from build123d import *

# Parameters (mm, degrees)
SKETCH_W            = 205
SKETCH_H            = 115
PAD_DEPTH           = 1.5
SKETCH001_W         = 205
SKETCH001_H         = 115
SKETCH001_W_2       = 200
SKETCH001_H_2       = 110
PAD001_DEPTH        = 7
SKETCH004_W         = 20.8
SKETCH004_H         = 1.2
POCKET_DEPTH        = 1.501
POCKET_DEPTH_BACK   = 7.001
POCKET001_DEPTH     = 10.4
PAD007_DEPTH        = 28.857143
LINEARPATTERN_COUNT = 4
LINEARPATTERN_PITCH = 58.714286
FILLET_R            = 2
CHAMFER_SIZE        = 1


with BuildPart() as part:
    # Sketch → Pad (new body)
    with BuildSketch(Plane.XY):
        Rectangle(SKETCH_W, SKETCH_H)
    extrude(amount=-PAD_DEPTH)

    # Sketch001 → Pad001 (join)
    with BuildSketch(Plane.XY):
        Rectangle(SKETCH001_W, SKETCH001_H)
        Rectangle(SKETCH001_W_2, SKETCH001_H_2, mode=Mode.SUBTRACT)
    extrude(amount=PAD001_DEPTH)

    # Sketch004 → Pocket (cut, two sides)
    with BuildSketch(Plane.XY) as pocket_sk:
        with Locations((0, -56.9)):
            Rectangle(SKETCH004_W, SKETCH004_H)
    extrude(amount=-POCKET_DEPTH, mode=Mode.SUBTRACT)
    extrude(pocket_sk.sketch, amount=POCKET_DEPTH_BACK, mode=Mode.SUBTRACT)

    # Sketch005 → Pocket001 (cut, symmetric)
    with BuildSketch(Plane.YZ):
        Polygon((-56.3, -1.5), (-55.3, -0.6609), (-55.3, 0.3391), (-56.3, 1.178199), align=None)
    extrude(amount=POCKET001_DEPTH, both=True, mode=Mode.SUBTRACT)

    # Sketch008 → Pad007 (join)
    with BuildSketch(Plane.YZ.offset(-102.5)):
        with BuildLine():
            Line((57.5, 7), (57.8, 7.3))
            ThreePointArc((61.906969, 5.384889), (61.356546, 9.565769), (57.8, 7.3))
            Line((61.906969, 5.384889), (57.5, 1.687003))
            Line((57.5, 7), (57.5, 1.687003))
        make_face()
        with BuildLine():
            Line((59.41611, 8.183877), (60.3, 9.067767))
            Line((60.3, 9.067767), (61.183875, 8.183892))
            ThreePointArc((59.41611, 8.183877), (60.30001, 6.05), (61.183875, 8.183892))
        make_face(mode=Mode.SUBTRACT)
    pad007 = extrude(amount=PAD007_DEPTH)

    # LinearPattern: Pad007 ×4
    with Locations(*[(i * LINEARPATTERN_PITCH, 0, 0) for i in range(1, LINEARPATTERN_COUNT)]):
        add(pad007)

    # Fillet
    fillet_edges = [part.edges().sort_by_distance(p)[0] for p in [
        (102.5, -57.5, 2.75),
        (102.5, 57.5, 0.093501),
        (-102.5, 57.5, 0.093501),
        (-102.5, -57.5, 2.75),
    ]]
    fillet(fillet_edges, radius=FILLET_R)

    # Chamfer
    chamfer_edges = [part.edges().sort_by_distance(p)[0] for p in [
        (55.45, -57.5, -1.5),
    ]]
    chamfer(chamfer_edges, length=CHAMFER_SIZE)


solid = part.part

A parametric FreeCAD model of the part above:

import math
import FreeCAD as App
import Part
import Sketcher
Q = App.Units.Quantity


def edges_at(feature, points):
    """Names of the edges that pass closest to the given points."""
    edges = feature.Shape.Edges
    near = lambda p: min(range(len(edges)), key=lambda i: edges[i].distToShape(Part.Vertex(*p))[0])
    return sorted({f"Edge{near(p) + 1}" for p in points})

doc = App.newDocument("Part")
body = doc.addObject("PartDesign::Body", "Body")

sketch1 = doc.addObject("Sketcher::SketchObject", "Sketch")
body.addObject(sketch1)
sketch1.AttachmentSupport = (doc.XY_Plane, [""])
sketch1.MapMode = "FlatFace"
sketch1.addGeometry(Part.LineSegment(App.Vector(-102.5, 57.5, 0), App.Vector(-102.5, -57.5, 0)), False)
sketch1.addGeometry(Part.LineSegment(App.Vector(-102.5, -57.5, 0), App.Vector(102.5, -57.5, 0)), False)
sketch1.addGeometry(Part.LineSegment(App.Vector(102.5, -57.5, 0), App.Vector(102.5, 57.5, 0)), False)
sketch1.addGeometry(Part.LineSegment(App.Vector(102.5, 57.5, 0), App.Vector(-102.5, 57.5, 0)), False)
sketch1.addConstraint(Sketcher.Constraint("Coincident", 0, 2, 1, 1))
sketch1.addConstraint(Sketcher.Constraint("Coincident", 1, 2, 2, 1))
sketch1.addConstraint(Sketcher.Constraint("Coincident", 2, 2, 3, 1))
sketch1.addConstraint(Sketcher.Constraint("Coincident", 3, 2, 0, 1))
sketch1.addConstraint(Sketcher.Constraint("Vertical", 0))
sketch1.addConstraint(Sketcher.Constraint("Horizontal", 1))
sketch1.addConstraint(Sketcher.Constraint("Vertical", 2))
sketch1.addConstraint(Sketcher.Constraint("Horizontal", 3))
sketch1.addConstraint(Sketcher.Constraint("Symmetric", 0, 2, 2, 2, -1, 1))
sketch1.addConstraint(Sketcher.Constraint("DistanceX", 1, 1, 1, 2, Q("205 mm")))
sketch1.addConstraint(Sketcher.Constraint("DistanceY", 0, 2, 0, 1, Q("115 mm")))
pad1 = doc.addObject("PartDesign::Pad", "Pad")
body.addObject(pad1)
pad1.Profile = sketch1
pad1.Length = 1.5
pad1.Reversed = True

sketch2 = doc.addObject("Sketcher::SketchObject", "Sketch001")
body.addObject(sketch2)
sketch2.AttachmentSupport = (doc.XY_Plane, [""])
sketch2.MapMode = "FlatFace"
sketch2.addGeometry(Part.LineSegment(App.Vector(-102.5, 57.5, 0), App.Vector(-102.5, -57.5, 0)), False)
sketch2.addGeometry(Part.LineSegment(App.Vector(-102.5, -57.5, 0), App.Vector(102.5, -57.5, 0)), False)
sketch2.addGeometry(Part.LineSegment(App.Vector(102.5, -57.5, 0), App.Vector(102.5, 57.5, 0)), False)
sketch2.addGeometry(Part.LineSegment(App.Vector(102.5, 57.5, 0), App.Vector(-102.5, 57.5, 0)), False)
sketch2.addGeometry(Part.LineSegment(App.Vector(100, -55, 0), App.Vector(-100, -55, 0)), False)
sketch2.addGeometry(Part.LineSegment(App.Vector(-100, -55, 0), App.Vector(-100, 55, 0)), False)
sketch2.addGeometry(Part.LineSegment(App.Vector(-100, 55, 0), App.Vector(100, 55, 0)), False)
sketch2.addGeometry(Part.LineSegment(App.Vector(100, 55, 0), App.Vector(100, -55, 0)), False)
sketch2.addConstraint(Sketcher.Constraint("Coincident", 0, 2, 1, 1))
sketch2.addConstraint(Sketcher.Constraint("Coincident", 1, 2, 2, 1))
sketch2.addConstraint(Sketcher.Constraint("Coincident", 2, 2, 3, 1))
sketch2.addConstraint(Sketcher.Constraint("Coincident", 3, 2, 0, 1))
sketch2.addConstraint(Sketcher.Constraint("Coincident", 4, 2, 5, 1))
sketch2.addConstraint(Sketcher.Constraint("Coincident", 5, 2, 6, 1))
sketch2.addConstraint(Sketcher.Constraint("Coincident", 6, 2, 7, 1))
sketch2.addConstraint(Sketcher.Constraint("Coincident", 7, 2, 4, 1))
sketch2.addConstraint(Sketcher.Constraint("Vertical", 0))
sketch2.addConstraint(Sketcher.Constraint("Horizontal", 1))
sketch2.addConstraint(Sketcher.Constraint("Vertical", 2))
sketch2.addConstraint(Sketcher.Constraint("Horizontal", 3))
sketch2.addConstraint(Sketcher.Constraint("Horizontal", 4))
sketch2.addConstraint(Sketcher.Constraint("Vertical", 5))
sketch2.addConstraint(Sketcher.Constraint("Horizontal", 6))
sketch2.addConstraint(Sketcher.Constraint("Vertical", 7))
sketch2.addConstraint(Sketcher.Constraint("Symmetric", 0, 2, 2, 2, -1, 1))
sketch2.addConstraint(Sketcher.Constraint("Symmetric", 4, 2, 6, 2, -1, 1))
sketch2.addConstraint(Sketcher.Constraint("DistanceX", 1, 1, 1, 2, Q("205 mm")))
sketch2.addConstraint(Sketcher.Constraint("DistanceX", 4, 2, 4, 1, Q("200 mm")))
sketch2.addConstraint(Sketcher.Constraint("DistanceY", 0, 2, 0, 1, Q("115 mm")))
sketch2.addConstraint(Sketcher.Constraint("DistanceY", 5, 1, 5, 2, Q("110 mm")))
pad2 = doc.addObject("PartDesign::Pad", "Pad001")
body.addObject(pad2)
pad2.Profile = sketch2
pad2.Length = 7

sketch3 = doc.addObject("Sketcher::SketchObject", "Sketch002")
body.addObject(sketch3)
sketch3.AttachmentSupport = (doc.XY_Plane, [""])
sketch3.MapMode = "FlatFace"
sketch3.addGeometry(Part.LineSegment(App.Vector(-10.4, -56.3, 0), App.Vector(-10.4, -57.5, 0)), False)
sketch3.addGeometry(Part.LineSegment(App.Vector(-10.4, -57.5, 0), App.Vector(10.4, -57.5, 0)), False)
sketch3.addGeometry(Part.LineSegment(App.Vector(10.4, -57.5, 0), App.Vector(10.4, -56.3, 0)), False)
sketch3.addGeometry(Part.LineSegment(App.Vector(10.4, -56.3, 0), App.Vector(-10.4, -56.3, 0)), False)
sketch3.addConstraint(Sketcher.Constraint("Coincident", 0, 2, 1, 1))
sketch3.addConstraint(Sketcher.Constraint("Coincident", 1, 2, 2, 1))
sketch3.addConstraint(Sketcher.Constraint("Coincident", 2, 2, 3, 1))
sketch3.addConstraint(Sketcher.Constraint("Coincident", 3, 2, 0, 1))
sketch3.addConstraint(Sketcher.Constraint("Vertical", 0))
sketch3.addConstraint(Sketcher.Constraint("Horizontal", 1))
sketch3.addConstraint(Sketcher.Constraint("Vertical", 2))
sketch3.addConstraint(Sketcher.Constraint("Horizontal", 3))
sketch3.addConstraint(Sketcher.Constraint("DistanceX", 1, 1, 1, 2, Q("20.8 mm")))
sketch3.addConstraint(Sketcher.Constraint("DistanceY", 0, 2, 0, 1, Q("1.2 mm")))
sketch3.addConstraint(Sketcher.Constraint("DistanceX", 0, 2, -1, 1, Q("10.4 mm")))
sketch3.addConstraint(Sketcher.Constraint("DistanceY", 0, 2, -1, 1, Q("57.5 mm")))
pocket1 = doc.addObject("PartDesign::Pocket", "Pocket")
body.addObject(pocket1)
pocket1.Profile = sketch3
pocket1.Type = "ThroughAll"
pocket1.Midplane = True

sketch4 = doc.addObject("Sketcher::SketchObject", "Sketch003")
body.addObject(sketch4)
sketch4.AttachmentSupport = (doc.YZ_Plane, [""])
sketch4.MapMode = "FlatFace"
sketch4.addGeometry(Part.LineSegment(App.Vector(-56.3, -1.5, 0), App.Vector(-55.3, -0.6609, 0)), False)
sketch4.addGeometry(Part.LineSegment(App.Vector(-55.3, -0.6609, 0), App.Vector(-55.3, 0.3391, 0)), False)
sketch4.addGeometry(Part.LineSegment(App.Vector(-55.3, 0.3391, 0), App.Vector(-56.3, 1.178199, 0)), False)
sketch4.addGeometry(Part.LineSegment(App.Vector(-56.3, 1.178199, 0), App.Vector(-56.3, -1.5, 0)), False)
sketch4.addConstraint(Sketcher.Constraint("Coincident", 0, 2, 1, 1))
sketch4.addConstraint(Sketcher.Constraint("Coincident", 1, 2, 2, 1))
sketch4.addConstraint(Sketcher.Constraint("Coincident", 2, 2, 3, 1))
sketch4.addConstraint(Sketcher.Constraint("Coincident", 3, 2, 0, 1))
sketch4.addConstraint(Sketcher.Constraint("Vertical", 1))
sketch4.addConstraint(Sketcher.Constraint("Vertical", 3))
sketch4.addConstraint(Sketcher.Constraint("Equal", 0, 2))
sketch4.addConstraint(Sketcher.Constraint("DistanceY", 1, 1, 1, 2, Q("1 mm")))
sketch4.addConstraint(Sketcher.Constraint("Angle", 0, Q("40.000012 deg")))
sketch4.addConstraint(Sketcher.Constraint("DistanceX", 2, 2, 1, 2, Q("1 mm")))
sketch4.addConstraint(Sketcher.Constraint("DistanceX", 0, 2, -1, 1, Q("55.3 mm")))
sketch4.addConstraint(Sketcher.Constraint("DistanceY", 3, 2, -1, 1, Q("1.5 mm")))
pocket2 = doc.addObject("PartDesign::Pocket", "Pocket001")
body.addObject(pocket2)
pocket2.Profile = sketch4
pocket2.Length = 20.8
pocket2.Midplane = True

sketch5 = doc.addObject("Sketcher::SketchObject", "Sketch004")
body.addObject(sketch5)
sketch5.AttachmentSupport = (doc.YZ_Plane, [""])
sketch5.MapMode = "FlatFace"
sketch5.AttachmentOffset = App.Placement(App.Vector(0, 0, -102.5), App.Rotation())
sketch5.addGeometry(Part.LineSegment(App.Vector(57.8, 7.3, 0), App.Vector(57.5, 7, 0)), False)
sketch5.addGeometry(Part.LineSegment(App.Vector(57.5, 7, 0), App.Vector(57.5, 1.687003, 0)), False)
sketch5.addGeometry(Part.LineSegment(App.Vector(57.5, 1.687003, 0), App.Vector(61.906969, 5.384889, 0)), False)
sketch5.addGeometry(Part.ArcOfCircle(Part.Circle(App.Vector(60.3, 7.3, 0), App.Vector(0, 0, 1), 2.5), math.radians(-49.999995), math.radians(179.999997)), False)
sketch5.addGeometry(Part.LineSegment(App.Vector(59.41611, 8.183877, 0), App.Vector(60.3, 9.067767, 0)), False)
sketch5.addGeometry(Part.LineSegment(App.Vector(60.3, 9.067767, 0), App.Vector(61.183875, 8.183892, 0)), False)
sketch5.addGeometry(Part.ArcOfCircle(Part.Circle(App.Vector(60.3, 7.3, 0), App.Vector(0, 0, 1), 1.25), math.radians(135.000422), math.radians(405.00055)), False)
sketch5.addConstraint(Sketcher.Constraint("Coincident", 0, 2, 1, 1))
sketch5.addConstraint(Sketcher.Constraint("Coincident", 1, 2, 2, 1))
sketch5.addConstraint(Sketcher.Constraint("Tangent", 2, 2, 3, 1))
sketch5.addConstraint(Sketcher.Constraint("Coincident", 3, 2, 0, 1))
sketch5.addConstraint(Sketcher.Constraint("Coincident", 4, 2, 5, 1))
sketch5.addConstraint(Sketcher.Constraint("Coincident", 5, 2, 6, 2))
sketch5.addConstraint(Sketcher.Constraint("Coincident", 6, 1, 4, 1))
sketch5.addConstraint(Sketcher.Constraint("Vertical", 1))
sketch5.addConstraint(Sketcher.Constraint("Coincident", 6, 3, 3, 3))
sketch5.addConstraint(Sketcher.Constraint("Parallel", 0, 4))
sketch5.addConstraint(Sketcher.Constraint("Perpendicular", 4, 5))
sketch5.addConstraint(Sketcher.Constraint("Horizontal", 6, 3, 3, 2))
sketch5.addConstraint(Sketcher.Constraint("Vertical", 6, 3, 4, 2))
sketch5.addConstraint(Sketcher.Constraint("Radius", 3, Q("2.5 mm")))
sketch5.addConstraint(Sketcher.Constraint("Angle", 2, Q("40 deg")))
sketch5.addConstraint(Sketcher.Constraint("Radius", 6, Q("1.25 mm")))
sketch5.addConstraint(Sketcher.Constraint("DistanceY", -1, 1, 0, 2, Q("7 mm")))
sketch5.addConstraint(Sketcher.Constraint("DistanceX", -1, 1, 3, 3, Q("60.3 mm")))
sketch5.addConstraint(Sketcher.Constraint("DistanceY", -1, 1, 3, 3, Q("7.3 mm")))
sketch5.addConstraint(Sketcher.Constraint("Distance", 4, Q("1.250009 mm")))
sketch5.addConstraint(Sketcher.Constraint("Distance", 5, Q("1.249988 mm")))
pad3 = doc.addObject("PartDesign::Pad", "Pad002")
body.addObject(pad3)
pad3.Profile = sketch5
pad3.Length = 28.857143
doc.recompute()

linearpattern = doc.addObject("PartDesign::LinearPattern", "LinearPattern")
body.addObject(linearpattern)
linearpattern.Originals = [pad3]
linearpattern.Direction = (doc.X_Axis, [""])
linearpattern.Mode = "offset"
linearpattern.Offset = 58.714286
linearpattern.Occurrences = 4
body.Tip = linearpattern
doc.recompute()

fillet = doc.addObject("PartDesign::Fillet", "Fillet")
body.addObject(fillet)
fillet.Base = (linearpattern, edges_at(linearpattern, [
    (102.5, -57.5, 2.75),
    (102.5, 57.5, 0.094),
    (-102.5, 57.5, 0.094),
    (-102.5, -57.5, 2.75),
]))
fillet.Radius = 2
doc.recompute()

chamfer = doc.addObject("PartDesign::Chamfer", "Chamfer")
body.addObject(chamfer)
chamfer.Base = (fillet, edges_at(fillet, [(55.45, -57.5, -1.5)]))
chamfer.Size = 1

doc.recompute()
